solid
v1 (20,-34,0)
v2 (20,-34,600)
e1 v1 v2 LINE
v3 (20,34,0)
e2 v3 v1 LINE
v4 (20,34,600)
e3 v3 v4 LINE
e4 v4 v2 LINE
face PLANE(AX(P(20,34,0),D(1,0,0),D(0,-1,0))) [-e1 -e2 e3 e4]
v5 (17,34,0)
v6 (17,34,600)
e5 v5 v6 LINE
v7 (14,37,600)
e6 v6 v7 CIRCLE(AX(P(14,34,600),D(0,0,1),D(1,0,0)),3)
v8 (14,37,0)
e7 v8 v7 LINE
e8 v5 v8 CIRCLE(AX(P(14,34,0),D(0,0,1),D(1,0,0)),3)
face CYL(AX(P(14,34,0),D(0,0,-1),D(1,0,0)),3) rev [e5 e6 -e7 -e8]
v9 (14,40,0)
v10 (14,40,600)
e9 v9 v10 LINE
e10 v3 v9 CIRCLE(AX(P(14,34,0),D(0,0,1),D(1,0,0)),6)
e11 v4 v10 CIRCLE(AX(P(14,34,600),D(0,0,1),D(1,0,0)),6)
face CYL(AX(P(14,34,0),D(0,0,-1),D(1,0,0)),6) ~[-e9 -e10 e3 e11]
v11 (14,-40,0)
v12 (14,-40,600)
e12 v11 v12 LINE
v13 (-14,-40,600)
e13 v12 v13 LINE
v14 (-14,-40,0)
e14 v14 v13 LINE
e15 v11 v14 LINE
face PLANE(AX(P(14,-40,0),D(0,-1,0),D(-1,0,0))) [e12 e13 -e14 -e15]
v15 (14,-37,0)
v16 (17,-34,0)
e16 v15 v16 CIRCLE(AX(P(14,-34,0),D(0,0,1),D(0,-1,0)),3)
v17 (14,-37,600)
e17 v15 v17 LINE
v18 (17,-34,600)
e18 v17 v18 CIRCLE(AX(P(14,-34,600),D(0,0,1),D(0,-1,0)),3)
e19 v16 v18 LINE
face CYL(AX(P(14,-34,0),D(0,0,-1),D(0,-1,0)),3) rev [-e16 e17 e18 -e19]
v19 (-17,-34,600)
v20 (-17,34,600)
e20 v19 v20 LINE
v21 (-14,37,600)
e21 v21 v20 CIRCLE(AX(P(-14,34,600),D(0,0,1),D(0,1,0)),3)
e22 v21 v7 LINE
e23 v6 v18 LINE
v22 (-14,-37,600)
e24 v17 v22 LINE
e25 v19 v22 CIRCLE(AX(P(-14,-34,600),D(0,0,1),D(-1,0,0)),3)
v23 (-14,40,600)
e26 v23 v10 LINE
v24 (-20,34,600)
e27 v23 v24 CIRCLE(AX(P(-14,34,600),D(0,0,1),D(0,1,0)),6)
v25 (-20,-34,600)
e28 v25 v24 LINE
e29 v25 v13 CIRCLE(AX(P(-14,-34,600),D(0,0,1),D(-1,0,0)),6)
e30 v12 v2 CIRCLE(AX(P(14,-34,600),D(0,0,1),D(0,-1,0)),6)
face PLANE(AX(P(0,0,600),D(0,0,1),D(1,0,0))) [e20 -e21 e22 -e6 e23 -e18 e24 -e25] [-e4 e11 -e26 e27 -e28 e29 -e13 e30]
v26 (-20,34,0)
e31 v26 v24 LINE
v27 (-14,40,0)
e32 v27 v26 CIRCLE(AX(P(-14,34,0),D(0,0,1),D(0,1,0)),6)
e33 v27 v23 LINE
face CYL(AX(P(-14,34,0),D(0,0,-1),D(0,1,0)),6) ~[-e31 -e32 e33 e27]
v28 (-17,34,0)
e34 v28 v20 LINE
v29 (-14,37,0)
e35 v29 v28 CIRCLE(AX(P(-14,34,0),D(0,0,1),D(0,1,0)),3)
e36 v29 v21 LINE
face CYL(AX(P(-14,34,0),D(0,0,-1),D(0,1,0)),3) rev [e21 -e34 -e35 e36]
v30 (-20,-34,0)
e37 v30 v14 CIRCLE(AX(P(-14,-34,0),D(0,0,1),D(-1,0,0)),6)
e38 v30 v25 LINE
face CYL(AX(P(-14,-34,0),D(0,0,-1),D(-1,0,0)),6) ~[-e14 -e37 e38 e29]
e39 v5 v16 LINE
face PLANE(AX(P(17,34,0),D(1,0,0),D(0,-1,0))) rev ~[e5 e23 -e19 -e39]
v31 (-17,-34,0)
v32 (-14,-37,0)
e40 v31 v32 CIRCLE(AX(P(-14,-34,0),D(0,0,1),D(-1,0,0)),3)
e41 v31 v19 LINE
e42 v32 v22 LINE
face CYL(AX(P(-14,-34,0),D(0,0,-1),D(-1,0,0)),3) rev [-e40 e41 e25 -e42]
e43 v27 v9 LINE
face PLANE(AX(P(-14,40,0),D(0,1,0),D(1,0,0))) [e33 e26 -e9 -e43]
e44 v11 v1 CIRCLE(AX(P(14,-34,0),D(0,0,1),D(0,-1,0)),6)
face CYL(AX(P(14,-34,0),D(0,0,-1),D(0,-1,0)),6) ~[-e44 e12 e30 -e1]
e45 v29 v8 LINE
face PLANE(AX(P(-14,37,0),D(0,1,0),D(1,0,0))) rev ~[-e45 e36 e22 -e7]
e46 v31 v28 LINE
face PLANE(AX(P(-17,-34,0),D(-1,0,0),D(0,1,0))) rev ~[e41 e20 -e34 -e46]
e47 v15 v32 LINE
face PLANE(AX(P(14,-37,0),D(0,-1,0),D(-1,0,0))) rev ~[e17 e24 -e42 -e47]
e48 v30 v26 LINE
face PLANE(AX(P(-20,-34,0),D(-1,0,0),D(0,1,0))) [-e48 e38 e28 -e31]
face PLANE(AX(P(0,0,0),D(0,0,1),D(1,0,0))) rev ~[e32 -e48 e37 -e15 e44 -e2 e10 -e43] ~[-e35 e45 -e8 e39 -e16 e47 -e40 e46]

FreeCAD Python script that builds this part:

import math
import FreeCAD as App
import Part
import Sketcher

doc = App.newDocument("Part")
body = doc.addObject("PartDesign::Body", "Body")

sketch1 = doc.addObject("Sketcher::SketchObject", "Sketch")
body.addObject(sketch1)
sketch1.AttachmentSupport = (doc.XY_Plane, [""])
sketch1.MapMode = "FlatFace"
sketch1.addGeometry([
    Part.LineSegment(App.Vector(-20, 34, 0), App.Vector(-20, -34, 0)),
    Part.ArcOfCircle(Part.Circle(App.Vector(-14, -34, 0), App.Vector(0, 0, 1), 6), math.radians(180), math.radians(270)),
    Part.LineSegment(App.Vector(-14, -40, 0), App.Vector(14, -40, 0)),
    Part.ArcOfCircle(Part.Circle(App.Vector(14, -34, 0), App.Vector(0, 0, 1), 6), math.radians(-90), math.radians(0)),
    Part.LineSegment(App.Vector(20, -34, 0), App.Vector(20, 34, 0)),
    Part.ArcOfCircle(Part.Circle(App.Vector(14, 34, 0), App.Vector(0, 0, 1), 6), math.radians(0), math.radians(90)),
    Part.LineSegment(App.Vector(14, 40, 0), App.Vector(-14, 40, 0)),
    Part.ArcOfCircle(Part.Circle(App.Vector(-14, 34, 0), App.Vector(0, 0, 1), 6), math.radians(90), math.radians(180)),
    Part.ArcOfCircle(Part.Circle(App.Vector(-14, 34, 0), App.Vector(0, 0, 1), 3), math.radians(90), math.radians(180)),
    Part.LineSegment(App.Vector(-14, 37, 0), App.Vector(14, 37, 0)),
    Part.ArcOfCircle(Part.Circle(App.Vector(14, 34, 0), App.Vector(0, 0, 1), 3), math.radians(0), math.radians(90)),
    Part.LineSegment(App.Vector(17, 34, 0), App.Vector(17, -34, 0)),
    Part.ArcOfCircle(Part.Circle(App.Vector(14, -34, 0), App.Vector(0, 0, 1), 3), math.radians(-90), math.radians(0)),
    Part.LineSegment(App.Vector(14, -37, 0), App.Vector(-14, -37, 0)),
    Part.ArcOfCircle(Part.Circle(App.Vector(-14, -34, 0), App.Vector(0, 0, 1), 3), math.radians(180), math.radians(270)),
    Part.LineSegment(App.Vector(-17, -34, 0), App.Vector(-17, 34, 0)),
], False)
sketch1.addConstraint([
    Sketcher.Constraint("Tangent", 0, 2, 1, 1),
    Sketcher.Constraint("Tangent", 1, 2, 2, 1),
    Sketcher.Constraint("Tangent", 2, 2, 3, 1),
    Sketcher.Constraint("Tangent", 3, 2, 4, 1),
    Sketcher.Constraint("Tangent", 4, 2, 5, 1),
    Sketcher.Constraint("Tangent", 5, 2, 6, 1),
    Sketcher.Constraint("Tangent", 6, 2, 7, 1),
    Sketcher.Constraint("Tangent", 7, 2, 0, 1),
    Sketcher.Constraint("Tangent", 8, 1, 9, 1),
    Sketcher.Constraint("Tangent", 9, 2, 10, 2),
    Sketcher.Constraint("Tangent", 10, 1, 11, 1),
    Sketcher.Constraint("Tangent", 11, 2, 12, 2),
    Sketcher.Constraint("Tangent", 12, 1, 13, 1),
    Sketcher.Constraint("Tangent", 13, 2, 14, 2),
    Sketcher.Constraint("Tangent", 14, 1, 15, 1),
    Sketcher.Constraint("Tangent", 15, 2, 8, 2),
    Sketcher.Constraint("Vertical", 0),
    Sketcher.Constraint("Horizontal", 2),
    Sketcher.Constraint("Vertical", 4),
    Sketcher.Constraint("Horizontal", 6),
    Sketcher.Constraint("Horizontal", 9),
    Sketcher.Constraint("Vertical", 11),
    Sketcher.Constraint("Horizontal", 13),
    Sketcher.Constraint("Vertical", 15),
    Sketcher.Constraint("Coincident", 8, 3, 7, 3),
    Sketcher.Constraint("Coincident", 10, 3, 5, 3),
    Sketcher.Constraint("Coincident", 12, 3, 3, 3),
    Sketcher.Constraint("Equal", 1, 3),
    Sketcher.Constraint("Equal", 3, 5),
    Sketcher.Constraint("Equal", 5, 7),
    Sketcher.Constraint("Equal", 12, 14),
    Sketcher.Constraint("Symmetric", 1, 3, 5, 3, -1, 1),
    Sketcher.Constraint("Radius", 1, 6.0),
    Sketcher.Constraint("Radius", 8, 3.0),
    Sketcher.Constraint("DistanceX", 0, 2, -1, 1, 20.0),
    Sketcher.Constraint("DistanceY", 1, 2, -1, 1, 40.0),
])
pad1 = doc.addObject("PartDesign::Pad", "Pad")
body.addObject(pad1)
pad1.Profile = sketch1
pad1.Length = 600

doc.recompute()
